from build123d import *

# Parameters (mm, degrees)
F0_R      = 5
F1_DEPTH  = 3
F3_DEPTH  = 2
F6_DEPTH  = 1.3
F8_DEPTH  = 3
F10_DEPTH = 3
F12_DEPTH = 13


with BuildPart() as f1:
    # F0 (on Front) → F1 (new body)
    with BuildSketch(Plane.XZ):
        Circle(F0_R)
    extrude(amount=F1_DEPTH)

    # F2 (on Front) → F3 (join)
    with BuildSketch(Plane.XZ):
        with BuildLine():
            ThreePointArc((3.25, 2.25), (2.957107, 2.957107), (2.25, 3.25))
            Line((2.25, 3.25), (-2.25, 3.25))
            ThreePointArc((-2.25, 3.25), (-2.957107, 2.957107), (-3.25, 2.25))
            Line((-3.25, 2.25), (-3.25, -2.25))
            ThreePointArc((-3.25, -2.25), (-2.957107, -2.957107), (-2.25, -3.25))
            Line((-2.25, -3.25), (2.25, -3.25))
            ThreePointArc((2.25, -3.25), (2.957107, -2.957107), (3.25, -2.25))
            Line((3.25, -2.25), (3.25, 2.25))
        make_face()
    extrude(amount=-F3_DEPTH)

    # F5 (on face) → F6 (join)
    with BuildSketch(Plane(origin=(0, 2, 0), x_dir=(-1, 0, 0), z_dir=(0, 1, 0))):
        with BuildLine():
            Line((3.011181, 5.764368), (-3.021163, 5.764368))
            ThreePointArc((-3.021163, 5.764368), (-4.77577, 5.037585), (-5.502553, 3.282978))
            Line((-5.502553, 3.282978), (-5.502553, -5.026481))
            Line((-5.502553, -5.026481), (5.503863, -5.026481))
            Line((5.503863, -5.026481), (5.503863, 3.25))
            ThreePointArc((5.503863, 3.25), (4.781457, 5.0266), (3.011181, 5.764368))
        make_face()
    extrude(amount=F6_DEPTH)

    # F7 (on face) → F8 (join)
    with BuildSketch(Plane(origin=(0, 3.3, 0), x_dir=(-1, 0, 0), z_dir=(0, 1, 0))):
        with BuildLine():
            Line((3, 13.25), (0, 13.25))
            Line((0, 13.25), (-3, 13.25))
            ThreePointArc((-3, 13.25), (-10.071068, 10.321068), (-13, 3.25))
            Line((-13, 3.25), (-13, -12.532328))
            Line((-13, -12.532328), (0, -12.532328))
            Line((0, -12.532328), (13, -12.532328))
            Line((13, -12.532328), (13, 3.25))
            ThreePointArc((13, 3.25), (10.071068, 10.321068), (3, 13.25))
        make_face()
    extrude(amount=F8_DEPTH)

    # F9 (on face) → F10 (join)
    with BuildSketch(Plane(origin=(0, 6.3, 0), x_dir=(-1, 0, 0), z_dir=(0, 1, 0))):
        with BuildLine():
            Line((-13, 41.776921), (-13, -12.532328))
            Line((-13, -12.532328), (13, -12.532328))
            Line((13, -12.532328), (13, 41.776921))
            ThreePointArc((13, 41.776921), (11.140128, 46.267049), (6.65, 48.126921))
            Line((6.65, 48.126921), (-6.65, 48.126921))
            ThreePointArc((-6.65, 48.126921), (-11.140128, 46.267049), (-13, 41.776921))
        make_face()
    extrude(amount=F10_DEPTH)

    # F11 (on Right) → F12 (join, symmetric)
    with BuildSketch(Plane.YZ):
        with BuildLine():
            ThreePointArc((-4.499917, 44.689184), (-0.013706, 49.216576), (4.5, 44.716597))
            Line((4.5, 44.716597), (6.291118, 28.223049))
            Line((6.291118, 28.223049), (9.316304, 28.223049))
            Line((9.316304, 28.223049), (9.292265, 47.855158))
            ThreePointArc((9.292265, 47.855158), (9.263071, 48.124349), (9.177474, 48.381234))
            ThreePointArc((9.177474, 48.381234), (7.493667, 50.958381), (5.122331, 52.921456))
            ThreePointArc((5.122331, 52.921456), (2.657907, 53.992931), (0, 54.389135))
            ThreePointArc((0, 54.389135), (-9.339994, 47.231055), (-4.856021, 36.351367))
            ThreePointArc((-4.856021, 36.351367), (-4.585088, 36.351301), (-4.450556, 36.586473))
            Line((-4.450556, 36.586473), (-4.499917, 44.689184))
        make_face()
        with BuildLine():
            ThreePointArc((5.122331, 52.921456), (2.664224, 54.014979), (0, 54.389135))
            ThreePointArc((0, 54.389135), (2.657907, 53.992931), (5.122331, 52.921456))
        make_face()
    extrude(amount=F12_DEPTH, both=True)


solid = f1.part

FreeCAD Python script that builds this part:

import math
import FreeCAD as App
import Part
import Sketcher

V = App.Vector
Q = App.Units.Quantity

doc = App.newDocument("Part")
body = doc.addObject("PartDesign::Body", "Body")

sketch1 = body.newObject("Sketcher::SketchObject", "Sketch")
sketch1.AttachmentSupport = (doc.getObject("XZ_Plane"), [""])
sketch1.MapMode = "FlatFace"
sketch1.addGeometry(Part.Circle(V(0, 0, 0), V(0, 0, 1), 5), False)
sketch1.addConstraint([
    Sketcher.Constraint("Coincident", 0, 3, -1, 1),
    Sketcher.Constraint("Diameter", 0, Q("10 mm")),
])
pad1 = body.newObject("PartDesign::Pad", "Pad")
pad1.Profile = sketch1
pad1.Length = 3

sketch2 = body.newObject("Sketcher::SketchObject", "Sketch001")
sketch2.AttachmentSupport = (doc.getObject("XZ_Plane"), [""])
sketch2.MapMode = "FlatFace"
sketch2.addGeometry([
    Part.ArcOfCircle(Part.Circle(V(2.250001, 2.250001, 0), V(0, 0, 1), 0.999999), math.radians(-0.000043), math.radians(90.000043)),
    Part.LineSegment(V(2.25, 3.25, 0), V(-2.25, 3.25, 0)),
    Part.ArcOfCircle(Part.Circle(V(-2.250001, 2.250001, 0), V(0, 0, 1), 0.999999), math.radians(89.999957), math.radians(180.000043)),
    Part.LineSegment(V(-3.25, 2.25, 0), V(-3.25, -2.25, 0)),
    Part.ArcOfCircle(Part.Circle(V(-2.250001, -2.250001, 0), V(0, 0, 1), 0.999999), math.radians(179.999957), math.radians(270.000043)),
    Part.LineSegment(V(-2.25, -3.25, 0), V(2.25, -3.25, 0)),
    Part.ArcOfCircle(Part.Circle(V(2.250001, -2.250001, 0), V(0, 0, 1), 0.999999), math.radians(-90.000043), math.radians(0.000043)),
    Part.LineSegment(V(3.25, -2.25, 0), V(3.25, 2.25, 0)),
], False)
sketch2.addConstraint([
    Sketcher.Constraint("Tangent", 0, 2, 1, 1),
    Sketcher.Constraint("Tangent", 1, 2, 2, 1),
    Sketcher.Constraint("Tangent", 2, 2, 3, 1),
    Sketcher.Constraint("Tangent", 3, 2, 4, 1),
    Sketcher.Constraint("Tangent", 4, 2, 5, 1),
    Sketcher.Constraint("Tangent", 5, 2, 6, 1),
    Sketcher.Constraint("Tangent", 6, 2, 7, 1),
    Sketcher.Constraint("Tangent", 7, 2, 0, 1),
    Sketcher.Constraint("Horizontal", 1),
    Sketcher.Constraint("Vertical", 3),
    Sketcher.Constraint("Horizontal", 5),
    Sketcher.Constraint("Vertical", 7),
    Sketcher.Constraint("Equal", 0, 2),
    Sketcher.Constraint("Equal", 2, 4),
    Sketcher.Constraint("Equal", 4, 6),
    Sketcher.Constraint("Symmetric", 0, 3, 4, 3, -1, 1),
    Sketcher.Constraint("Equal", 5, 3),
    Sketcher.Constraint("Radius", 0, Q("0.999999 mm")),
    Sketcher.Constraint("DistanceX", 1, 2, 1, 1, Q("4.5 mm")),
])
pad2 = body.newObject("PartDesign::Pad", "Pad001")
pad2.Profile = sketch2
pad2.Length = 2
pad2.Reversed = True

sketch3 = body.newObject("Sketcher::SketchObject", "Sketch002")
sketch3.AttachmentSupport = (doc.getObject("XZ_Plane"), [""])
sketch3.MapMode = "FlatFace"
sketch3.AttachmentOffset = App.Placement(V(0, 0, -2), App.Rotation())
sketch3.addGeometry([
    Part.LineSegment(V(-3.011181, 5.764368, 0), V(3.021163, 5.764368, 0)),
    Part.ArcOfCircle(Part.Circle(V(3.021161, 3.282976, 0), V(0, 0, 1), 2.481392), math.radians(0.000055), math.radians(89.999945)),
    Part.LineSegment(V(5.502553, 3.282978, 0), V(5.502553, -5.026481, 0)),
    Part.LineSegment(V(5.502553, -5.026481, 0), V(-5.503863, -5.026481, 0)),
    Part.LineSegment(V(-5.503863, -5.026481, 0), V(-5.503863, 3.25, 0)),
    Part.ArcOfCircle(Part.Circle(V(-3.01118, 3.271592, 0), V(0, 0, 1), 2.492776), math.radians(90.000014), math.radians(180.496289)),
], False)
sketch3.addConstraint([
    Sketcher.Constraint("Tangent", 0, 2, 1, 2),
    Sketcher.Constraint("Tangent", 1, 1, 2, 1),
    Sketcher.Constraint("Coincident", 2, 2, 3, 1),
    Sketcher.Constraint("Coincident", 3, 2, 4, 1),
    Sketcher.Constraint("Coincident", 4, 2, 5, 2),
    Sketcher.Constraint("Tangent", 5, 1, 0, 1),
    Sketcher.Constraint("Horizontal", 0),
    Sketcher.Constraint("Vertical", 2),
    Sketcher.Constraint("Horizontal", 3),
    Sketcher.Constraint("Vertical", 4),
    Sketcher.Constraint("DistanceY", -1, 1, 4, 2, Q("3.25 mm")),
    Sketcher.Constraint("Radius", 1, Q("2.481392 mm")),
    Sketcher.Constraint("Radius", 5, Q("2.492776 mm")),
    Sketcher.Constraint("DistanceY", 2, 2, 2, 1, Q("8.309459 mm")),
    Sketcher.Constraint("DistanceY", 4, 1, 4, 2, Q("8.276481 mm")),
    Sketcher.Constraint("DistanceX", 0, 1, 0, 2, Q("6.032344 mm")),
    Sketcher.Constraint("DistanceX", -1, 1, 1, 3, Q("3.021161 mm")),
])
pad3 = body.newObject("PartDesign::Pad", "Pad002")
pad3.Profile = sketch3
pad3.Length = 1.3
pad3.Reversed = True

sketch4 = body.newObject("Sketcher::SketchObject", "Sketch003")
sketch4.AttachmentSupport = (doc.getObject("XZ_Plane"), [""])
sketch4.MapMode = "FlatFace"
sketch4.AttachmentOffset = App.Placement(V(0, 0, -3.3), App.Rotation())
sketch4.addGeometry([
    Part.LineSegment(V(-3, 13.25, 0), V(3, 13.25, 0)),
    Part.ArcOfCircle(Part.Circle(V(3.000001, 3.250001, 0), V(0, 0, 1), 9.999999), math.radians(-0.000004), math.radians(90.000004)),
    Part.LineSegment(V(13, 3.25, 0), V(13, -12.532328, 0)),
    Part.LineSegment(V(13, -12.532328, 0), V(-13, -12.532328, 0)),
    Part.LineSegment(V(-13, -12.532328, 0), V(-13, 3.25, 0)),
    Part.ArcOfCircle(Part.Circle(V(-3.000001, 3.250001, 0), V(0, 0, 1), 9.999999), math.radians(89.999996), math.radians(180.000004)),
], False)
sketch4.addConstraint([
    Sketcher.Constraint("Tangent", 0, 2, 1, 2),
    Sketcher.Constraint("Tangent", 1, 1, 2, 1),
    Sketcher.Constraint("Coincident", 2, 2, 3, 1),
    Sketcher.Constraint("Coincident", 3, 2, 4, 1),
    Sketcher.Constraint("Tangent", 4, 2, 5, 2),
    Sketcher.Constraint("Tangent", 5, 1, 0, 1),
    Sketcher.Constraint("Horizontal", 0),
    Sketcher.Constraint("Vertical", 2),
    Sketcher.Constraint("Horizontal", 3),
    Sketcher.Constraint("Vertical", 4),
    Sketcher.Constraint("Equal", 1, 5),
    Sketcher.Constraint("Radius", 1, Q("9.999999 mm")),
    Sketcher.Constraint("DistanceX", 0, 1, 0, 2, Q("6 mm")),
    Sketcher.Constraint("DistanceX", -1, 1, 1, 3, Q("3.000001 mm")),
    Sketcher.Constraint("DistanceY", -1, 1, 1, 3, Q("3.250001 mm")),
    Sketcher.Constraint("DistanceY", 2, 2, 2, 1, Q("15.782328 mm")),
])
pad4 = body.newObject("PartDesign::Pad", "Pad003")
pad4.Profile = sketch4
pad4.Length = 3
pad4.Reversed = True

sketch5 = body.newObject("Sketcher::SketchObject", "Sketch004")
sketch5.AttachmentSupport = (doc.getObject("XZ_Plane"), [""])
sketch5.MapMode = "FlatFace"
sketch5.AttachmentOffset = App.Placement(V(0, 0, -6.3), App.Rotation())
sketch5.addGeometry([
    Part.LineSegment(V(13, 41.776921, 0), V(13, -12.532328, 0)),
    Part.LineSegment(V(13, -12.532328, 0), V(-13, -12.532328, 0)),
    Part.LineSegment(V(-13, -12.532328, 0), V(-13, 41.776921, 0)),
    Part.ArcOfCircle(Part.Circle(V(-6.65, 41.776921, 0), V(0, 0, 1), 6.35), math.radians(90.000002), math.radians(179.999998)),
    Part.LineSegment(V(-6.65, 48.126921, 0), V(6.65, 48.126921, 0)),
    Part.ArcOfCircle(Part.Circle(V(6.65, 41.776921, 0), V(0, 0, 1), 6.35), math.radians(0.000002), math.radians(89.999998)),
], False)
sketch5.addConstraint([
    Sketcher.Constraint("Coincident", 0, 2, 1, 1),
    Sketcher.Constraint("Coincident", 1, 2, 2, 1),
    Sketcher.Constraint("Tangent", 2, 2, 3, 2),
    Sketcher.Constraint("Tangent", 3, 1, 4, 1),
    Sketcher.Constraint("Tangent", 4, 2, 5, 2),
    Sketcher.Constraint("Tangent", 5, 1, 0, 1),
    Sketcher.Constraint("Vertical", 0),
    Sketcher.Constraint("Horizontal", 1),
    Sketcher.Constraint("Vertical", 2),
    Sketcher.Constraint("Horizontal", 4),
    Sketcher.Constraint("Equal", 3, 5),
    Sketcher.Constraint("DistanceX", 1, 2, 1, 1, Q("26 mm")),
    Sketcher.Constraint("Radius", 3, Q("6.35 mm")),
    Sketcher.Constraint("DistanceX", -1, 1, 0, 2, Q("13 mm")),
    Sketcher.Constraint("DistanceY", 0, 2, 0, 1, Q("54.309249 mm")),
    Sketcher.Constraint("DistanceY", -1, 1, 3, 3, Q("41.776921 mm")),
])
pad5 = body.newObject("PartDesign::Pad", "Pad004")
pad5.Profile = sketch5
pad5.Length = 3
pad5.Reversed = True

sketch6 = body.newObject("Sketcher::SketchObject", "Sketch005")
sketch6.AttachmentSupport = (doc.getObject("YZ_Plane"), [""])
sketch6.MapMode = "FlatFace"
sketch6.addGeometry([
    Part.ArcOfCircle(Part.Circle(V(0, 44.716597, 0), V(0, 0, 1), 4.5), math.radians(0.000005), math.radians(180.349031)),
    Part.LineSegment(V(4.5, 44.716597, 0), V(6.291118, 28.223049, 0)),
    Part.LineSegment(V(6.291118, 28.223049, 0), V(9.316304, 28.223049, 0)),
    Part.LineSegment(V(9.316304, 28.223049, 0), V(9.292265, 47.855158, 0)),
    Part.ArcOfCircle(Part.Circle(V(8.022275, 47.853605, 0), V(0, 0, 1), 1.269991), math.radians(0.070065), math.radians(24.548209)),
    Part.ArcOfCircle(Part.Circle(V(-0.173766, 44.11014, 0), V(0, 0, 1), 10.280463), math.radians(24.54812), math.radians(58.991764)),
    Part.ArcOfCircle(Part.Circle(V(0.000003, 44.716608, 0), V(0, 0, 1), 9.672527), math.radians(58.023257), math.radians(90.000016)),
    Part.ArcOfCircle(Part.Circle(V(0.000001, 44.716596, 0), V(0, 0, 1), 9.672539), math.radians(90.000005), math.radians(239.864802)),
    Part.ArcOfCircle(Part.Circle(V(-4.720498, 36.584829, 0), V(0, 0, 1), 0.269947), math.radians(-120.134904), math.radians(0.348899)),
    Part.LineSegment(V(-4.450556, 36.586473, 0), V(-4.499917, 44.689184, 0)),
], False)
sketch6.addConstraint([
    Sketcher.Constraint("Coincident", 0, 1, 1, 1),
    Sketcher.Constraint("Coincident", 1, 2, 2, 1),
    Sketcher.Constraint("Coincident", 2, 2, 3, 1),
    Sketcher.Constraint("Coincident", 3, 2, 4, 1),
    Sketcher.Constraint("Coincident", 4, 2, 5, 1),
    Sketcher.Constraint("Coincident", 5, 2, 6, 1),
    Sketcher.Constraint("Coincident", 6, 2, 7, 1),
    Sketcher.Constraint("Coincident", 7, 2, 8, 1),
    Sketcher.Constraint("Coincident", 8, 2, 9, 1),
    Sketcher.Constraint("Coincident", 9, 2, 0, 2),
    Sketcher.Constraint("Horizontal", 2),
    Sketcher.Constraint("Coincident", 7, 3, 0, 3),
    Sketcher.Constraint("PointOnObject", 0, 3, -2),
    Sketcher.Constraint("PointOnObject", 6, 2, -2),
    Sketcher.Constraint("Radius", 0, Q("4.5 mm")),
    Sketcher.Constraint("Radius", 4, Q("1.269991 mm")),
    Sketcher.Constraint("Radius", 7, Q("9.672539 mm")),
    Sketcher.Constraint("Radius", 5, Q("10.280463 mm")),
    Sketcher.Constraint("Radius", 6, Q("9.672527 mm")),
    Sketcher.Constraint("Radius", 8, Q("0.269947 mm")),
    Sketcher.Constraint("DistanceX", 8, 3, 7, 3, Q("4.720498 mm")),
    Sketcher.Constraint("DistanceX", 8, 3, 6, 3, Q("4.7205 mm")),
    Sketcher.Constraint("DistanceX", 8, 3, 2, 2, Q("14.036802 mm")),
    Sketcher.Constraint("DistanceX", 4, 3, 4, 2, Q("1.155199 mm")),
    Sketcher.Constraint("DistanceY", 3, 2, 5, 2, Q("5.066298 mm")),
    Sketcher.Constraint("Distance", 9, Q("8.102861 mm")),
    Sketcher.Constraint("DistanceX", 2, 1, 2, 2, Q("3.025186 mm")),
    Sketcher.Constraint("DistanceY", -1, 1, 5, 3, Q("44.11014 mm")),
    Sketcher.Constraint("DistanceY", -1, 1, 6, 3, Q("44.716608 mm")),
    Sketcher.Constraint("DistanceY", -1, 1, 1, 2, Q("28.223049 mm")),
    Sketcher.Constraint("DistanceY", -1, 1, 3, 2, Q("47.855158 mm")),
    Sketcher.Constraint("DistanceX", 7, 2, -1, 1, Q("4.856021 mm")),
    Sketcher.Constraint("DistanceY", 0, 3, 4, 3, Q("3.137008 mm")),
    Sketcher.Constraint("DistanceY", 1, 2, 0, 1, Q("16.493548 mm")),
    Sketcher.Constraint("DistanceY", -1, 1, 8, 2, Q("36.586473 mm")),
])
pad6 = body.newObject("PartDesign::Pad", "Pad005")
pad6.Profile = sketch6
pad6.Length = 26
pad6.Midplane = True

doc.recompute()
